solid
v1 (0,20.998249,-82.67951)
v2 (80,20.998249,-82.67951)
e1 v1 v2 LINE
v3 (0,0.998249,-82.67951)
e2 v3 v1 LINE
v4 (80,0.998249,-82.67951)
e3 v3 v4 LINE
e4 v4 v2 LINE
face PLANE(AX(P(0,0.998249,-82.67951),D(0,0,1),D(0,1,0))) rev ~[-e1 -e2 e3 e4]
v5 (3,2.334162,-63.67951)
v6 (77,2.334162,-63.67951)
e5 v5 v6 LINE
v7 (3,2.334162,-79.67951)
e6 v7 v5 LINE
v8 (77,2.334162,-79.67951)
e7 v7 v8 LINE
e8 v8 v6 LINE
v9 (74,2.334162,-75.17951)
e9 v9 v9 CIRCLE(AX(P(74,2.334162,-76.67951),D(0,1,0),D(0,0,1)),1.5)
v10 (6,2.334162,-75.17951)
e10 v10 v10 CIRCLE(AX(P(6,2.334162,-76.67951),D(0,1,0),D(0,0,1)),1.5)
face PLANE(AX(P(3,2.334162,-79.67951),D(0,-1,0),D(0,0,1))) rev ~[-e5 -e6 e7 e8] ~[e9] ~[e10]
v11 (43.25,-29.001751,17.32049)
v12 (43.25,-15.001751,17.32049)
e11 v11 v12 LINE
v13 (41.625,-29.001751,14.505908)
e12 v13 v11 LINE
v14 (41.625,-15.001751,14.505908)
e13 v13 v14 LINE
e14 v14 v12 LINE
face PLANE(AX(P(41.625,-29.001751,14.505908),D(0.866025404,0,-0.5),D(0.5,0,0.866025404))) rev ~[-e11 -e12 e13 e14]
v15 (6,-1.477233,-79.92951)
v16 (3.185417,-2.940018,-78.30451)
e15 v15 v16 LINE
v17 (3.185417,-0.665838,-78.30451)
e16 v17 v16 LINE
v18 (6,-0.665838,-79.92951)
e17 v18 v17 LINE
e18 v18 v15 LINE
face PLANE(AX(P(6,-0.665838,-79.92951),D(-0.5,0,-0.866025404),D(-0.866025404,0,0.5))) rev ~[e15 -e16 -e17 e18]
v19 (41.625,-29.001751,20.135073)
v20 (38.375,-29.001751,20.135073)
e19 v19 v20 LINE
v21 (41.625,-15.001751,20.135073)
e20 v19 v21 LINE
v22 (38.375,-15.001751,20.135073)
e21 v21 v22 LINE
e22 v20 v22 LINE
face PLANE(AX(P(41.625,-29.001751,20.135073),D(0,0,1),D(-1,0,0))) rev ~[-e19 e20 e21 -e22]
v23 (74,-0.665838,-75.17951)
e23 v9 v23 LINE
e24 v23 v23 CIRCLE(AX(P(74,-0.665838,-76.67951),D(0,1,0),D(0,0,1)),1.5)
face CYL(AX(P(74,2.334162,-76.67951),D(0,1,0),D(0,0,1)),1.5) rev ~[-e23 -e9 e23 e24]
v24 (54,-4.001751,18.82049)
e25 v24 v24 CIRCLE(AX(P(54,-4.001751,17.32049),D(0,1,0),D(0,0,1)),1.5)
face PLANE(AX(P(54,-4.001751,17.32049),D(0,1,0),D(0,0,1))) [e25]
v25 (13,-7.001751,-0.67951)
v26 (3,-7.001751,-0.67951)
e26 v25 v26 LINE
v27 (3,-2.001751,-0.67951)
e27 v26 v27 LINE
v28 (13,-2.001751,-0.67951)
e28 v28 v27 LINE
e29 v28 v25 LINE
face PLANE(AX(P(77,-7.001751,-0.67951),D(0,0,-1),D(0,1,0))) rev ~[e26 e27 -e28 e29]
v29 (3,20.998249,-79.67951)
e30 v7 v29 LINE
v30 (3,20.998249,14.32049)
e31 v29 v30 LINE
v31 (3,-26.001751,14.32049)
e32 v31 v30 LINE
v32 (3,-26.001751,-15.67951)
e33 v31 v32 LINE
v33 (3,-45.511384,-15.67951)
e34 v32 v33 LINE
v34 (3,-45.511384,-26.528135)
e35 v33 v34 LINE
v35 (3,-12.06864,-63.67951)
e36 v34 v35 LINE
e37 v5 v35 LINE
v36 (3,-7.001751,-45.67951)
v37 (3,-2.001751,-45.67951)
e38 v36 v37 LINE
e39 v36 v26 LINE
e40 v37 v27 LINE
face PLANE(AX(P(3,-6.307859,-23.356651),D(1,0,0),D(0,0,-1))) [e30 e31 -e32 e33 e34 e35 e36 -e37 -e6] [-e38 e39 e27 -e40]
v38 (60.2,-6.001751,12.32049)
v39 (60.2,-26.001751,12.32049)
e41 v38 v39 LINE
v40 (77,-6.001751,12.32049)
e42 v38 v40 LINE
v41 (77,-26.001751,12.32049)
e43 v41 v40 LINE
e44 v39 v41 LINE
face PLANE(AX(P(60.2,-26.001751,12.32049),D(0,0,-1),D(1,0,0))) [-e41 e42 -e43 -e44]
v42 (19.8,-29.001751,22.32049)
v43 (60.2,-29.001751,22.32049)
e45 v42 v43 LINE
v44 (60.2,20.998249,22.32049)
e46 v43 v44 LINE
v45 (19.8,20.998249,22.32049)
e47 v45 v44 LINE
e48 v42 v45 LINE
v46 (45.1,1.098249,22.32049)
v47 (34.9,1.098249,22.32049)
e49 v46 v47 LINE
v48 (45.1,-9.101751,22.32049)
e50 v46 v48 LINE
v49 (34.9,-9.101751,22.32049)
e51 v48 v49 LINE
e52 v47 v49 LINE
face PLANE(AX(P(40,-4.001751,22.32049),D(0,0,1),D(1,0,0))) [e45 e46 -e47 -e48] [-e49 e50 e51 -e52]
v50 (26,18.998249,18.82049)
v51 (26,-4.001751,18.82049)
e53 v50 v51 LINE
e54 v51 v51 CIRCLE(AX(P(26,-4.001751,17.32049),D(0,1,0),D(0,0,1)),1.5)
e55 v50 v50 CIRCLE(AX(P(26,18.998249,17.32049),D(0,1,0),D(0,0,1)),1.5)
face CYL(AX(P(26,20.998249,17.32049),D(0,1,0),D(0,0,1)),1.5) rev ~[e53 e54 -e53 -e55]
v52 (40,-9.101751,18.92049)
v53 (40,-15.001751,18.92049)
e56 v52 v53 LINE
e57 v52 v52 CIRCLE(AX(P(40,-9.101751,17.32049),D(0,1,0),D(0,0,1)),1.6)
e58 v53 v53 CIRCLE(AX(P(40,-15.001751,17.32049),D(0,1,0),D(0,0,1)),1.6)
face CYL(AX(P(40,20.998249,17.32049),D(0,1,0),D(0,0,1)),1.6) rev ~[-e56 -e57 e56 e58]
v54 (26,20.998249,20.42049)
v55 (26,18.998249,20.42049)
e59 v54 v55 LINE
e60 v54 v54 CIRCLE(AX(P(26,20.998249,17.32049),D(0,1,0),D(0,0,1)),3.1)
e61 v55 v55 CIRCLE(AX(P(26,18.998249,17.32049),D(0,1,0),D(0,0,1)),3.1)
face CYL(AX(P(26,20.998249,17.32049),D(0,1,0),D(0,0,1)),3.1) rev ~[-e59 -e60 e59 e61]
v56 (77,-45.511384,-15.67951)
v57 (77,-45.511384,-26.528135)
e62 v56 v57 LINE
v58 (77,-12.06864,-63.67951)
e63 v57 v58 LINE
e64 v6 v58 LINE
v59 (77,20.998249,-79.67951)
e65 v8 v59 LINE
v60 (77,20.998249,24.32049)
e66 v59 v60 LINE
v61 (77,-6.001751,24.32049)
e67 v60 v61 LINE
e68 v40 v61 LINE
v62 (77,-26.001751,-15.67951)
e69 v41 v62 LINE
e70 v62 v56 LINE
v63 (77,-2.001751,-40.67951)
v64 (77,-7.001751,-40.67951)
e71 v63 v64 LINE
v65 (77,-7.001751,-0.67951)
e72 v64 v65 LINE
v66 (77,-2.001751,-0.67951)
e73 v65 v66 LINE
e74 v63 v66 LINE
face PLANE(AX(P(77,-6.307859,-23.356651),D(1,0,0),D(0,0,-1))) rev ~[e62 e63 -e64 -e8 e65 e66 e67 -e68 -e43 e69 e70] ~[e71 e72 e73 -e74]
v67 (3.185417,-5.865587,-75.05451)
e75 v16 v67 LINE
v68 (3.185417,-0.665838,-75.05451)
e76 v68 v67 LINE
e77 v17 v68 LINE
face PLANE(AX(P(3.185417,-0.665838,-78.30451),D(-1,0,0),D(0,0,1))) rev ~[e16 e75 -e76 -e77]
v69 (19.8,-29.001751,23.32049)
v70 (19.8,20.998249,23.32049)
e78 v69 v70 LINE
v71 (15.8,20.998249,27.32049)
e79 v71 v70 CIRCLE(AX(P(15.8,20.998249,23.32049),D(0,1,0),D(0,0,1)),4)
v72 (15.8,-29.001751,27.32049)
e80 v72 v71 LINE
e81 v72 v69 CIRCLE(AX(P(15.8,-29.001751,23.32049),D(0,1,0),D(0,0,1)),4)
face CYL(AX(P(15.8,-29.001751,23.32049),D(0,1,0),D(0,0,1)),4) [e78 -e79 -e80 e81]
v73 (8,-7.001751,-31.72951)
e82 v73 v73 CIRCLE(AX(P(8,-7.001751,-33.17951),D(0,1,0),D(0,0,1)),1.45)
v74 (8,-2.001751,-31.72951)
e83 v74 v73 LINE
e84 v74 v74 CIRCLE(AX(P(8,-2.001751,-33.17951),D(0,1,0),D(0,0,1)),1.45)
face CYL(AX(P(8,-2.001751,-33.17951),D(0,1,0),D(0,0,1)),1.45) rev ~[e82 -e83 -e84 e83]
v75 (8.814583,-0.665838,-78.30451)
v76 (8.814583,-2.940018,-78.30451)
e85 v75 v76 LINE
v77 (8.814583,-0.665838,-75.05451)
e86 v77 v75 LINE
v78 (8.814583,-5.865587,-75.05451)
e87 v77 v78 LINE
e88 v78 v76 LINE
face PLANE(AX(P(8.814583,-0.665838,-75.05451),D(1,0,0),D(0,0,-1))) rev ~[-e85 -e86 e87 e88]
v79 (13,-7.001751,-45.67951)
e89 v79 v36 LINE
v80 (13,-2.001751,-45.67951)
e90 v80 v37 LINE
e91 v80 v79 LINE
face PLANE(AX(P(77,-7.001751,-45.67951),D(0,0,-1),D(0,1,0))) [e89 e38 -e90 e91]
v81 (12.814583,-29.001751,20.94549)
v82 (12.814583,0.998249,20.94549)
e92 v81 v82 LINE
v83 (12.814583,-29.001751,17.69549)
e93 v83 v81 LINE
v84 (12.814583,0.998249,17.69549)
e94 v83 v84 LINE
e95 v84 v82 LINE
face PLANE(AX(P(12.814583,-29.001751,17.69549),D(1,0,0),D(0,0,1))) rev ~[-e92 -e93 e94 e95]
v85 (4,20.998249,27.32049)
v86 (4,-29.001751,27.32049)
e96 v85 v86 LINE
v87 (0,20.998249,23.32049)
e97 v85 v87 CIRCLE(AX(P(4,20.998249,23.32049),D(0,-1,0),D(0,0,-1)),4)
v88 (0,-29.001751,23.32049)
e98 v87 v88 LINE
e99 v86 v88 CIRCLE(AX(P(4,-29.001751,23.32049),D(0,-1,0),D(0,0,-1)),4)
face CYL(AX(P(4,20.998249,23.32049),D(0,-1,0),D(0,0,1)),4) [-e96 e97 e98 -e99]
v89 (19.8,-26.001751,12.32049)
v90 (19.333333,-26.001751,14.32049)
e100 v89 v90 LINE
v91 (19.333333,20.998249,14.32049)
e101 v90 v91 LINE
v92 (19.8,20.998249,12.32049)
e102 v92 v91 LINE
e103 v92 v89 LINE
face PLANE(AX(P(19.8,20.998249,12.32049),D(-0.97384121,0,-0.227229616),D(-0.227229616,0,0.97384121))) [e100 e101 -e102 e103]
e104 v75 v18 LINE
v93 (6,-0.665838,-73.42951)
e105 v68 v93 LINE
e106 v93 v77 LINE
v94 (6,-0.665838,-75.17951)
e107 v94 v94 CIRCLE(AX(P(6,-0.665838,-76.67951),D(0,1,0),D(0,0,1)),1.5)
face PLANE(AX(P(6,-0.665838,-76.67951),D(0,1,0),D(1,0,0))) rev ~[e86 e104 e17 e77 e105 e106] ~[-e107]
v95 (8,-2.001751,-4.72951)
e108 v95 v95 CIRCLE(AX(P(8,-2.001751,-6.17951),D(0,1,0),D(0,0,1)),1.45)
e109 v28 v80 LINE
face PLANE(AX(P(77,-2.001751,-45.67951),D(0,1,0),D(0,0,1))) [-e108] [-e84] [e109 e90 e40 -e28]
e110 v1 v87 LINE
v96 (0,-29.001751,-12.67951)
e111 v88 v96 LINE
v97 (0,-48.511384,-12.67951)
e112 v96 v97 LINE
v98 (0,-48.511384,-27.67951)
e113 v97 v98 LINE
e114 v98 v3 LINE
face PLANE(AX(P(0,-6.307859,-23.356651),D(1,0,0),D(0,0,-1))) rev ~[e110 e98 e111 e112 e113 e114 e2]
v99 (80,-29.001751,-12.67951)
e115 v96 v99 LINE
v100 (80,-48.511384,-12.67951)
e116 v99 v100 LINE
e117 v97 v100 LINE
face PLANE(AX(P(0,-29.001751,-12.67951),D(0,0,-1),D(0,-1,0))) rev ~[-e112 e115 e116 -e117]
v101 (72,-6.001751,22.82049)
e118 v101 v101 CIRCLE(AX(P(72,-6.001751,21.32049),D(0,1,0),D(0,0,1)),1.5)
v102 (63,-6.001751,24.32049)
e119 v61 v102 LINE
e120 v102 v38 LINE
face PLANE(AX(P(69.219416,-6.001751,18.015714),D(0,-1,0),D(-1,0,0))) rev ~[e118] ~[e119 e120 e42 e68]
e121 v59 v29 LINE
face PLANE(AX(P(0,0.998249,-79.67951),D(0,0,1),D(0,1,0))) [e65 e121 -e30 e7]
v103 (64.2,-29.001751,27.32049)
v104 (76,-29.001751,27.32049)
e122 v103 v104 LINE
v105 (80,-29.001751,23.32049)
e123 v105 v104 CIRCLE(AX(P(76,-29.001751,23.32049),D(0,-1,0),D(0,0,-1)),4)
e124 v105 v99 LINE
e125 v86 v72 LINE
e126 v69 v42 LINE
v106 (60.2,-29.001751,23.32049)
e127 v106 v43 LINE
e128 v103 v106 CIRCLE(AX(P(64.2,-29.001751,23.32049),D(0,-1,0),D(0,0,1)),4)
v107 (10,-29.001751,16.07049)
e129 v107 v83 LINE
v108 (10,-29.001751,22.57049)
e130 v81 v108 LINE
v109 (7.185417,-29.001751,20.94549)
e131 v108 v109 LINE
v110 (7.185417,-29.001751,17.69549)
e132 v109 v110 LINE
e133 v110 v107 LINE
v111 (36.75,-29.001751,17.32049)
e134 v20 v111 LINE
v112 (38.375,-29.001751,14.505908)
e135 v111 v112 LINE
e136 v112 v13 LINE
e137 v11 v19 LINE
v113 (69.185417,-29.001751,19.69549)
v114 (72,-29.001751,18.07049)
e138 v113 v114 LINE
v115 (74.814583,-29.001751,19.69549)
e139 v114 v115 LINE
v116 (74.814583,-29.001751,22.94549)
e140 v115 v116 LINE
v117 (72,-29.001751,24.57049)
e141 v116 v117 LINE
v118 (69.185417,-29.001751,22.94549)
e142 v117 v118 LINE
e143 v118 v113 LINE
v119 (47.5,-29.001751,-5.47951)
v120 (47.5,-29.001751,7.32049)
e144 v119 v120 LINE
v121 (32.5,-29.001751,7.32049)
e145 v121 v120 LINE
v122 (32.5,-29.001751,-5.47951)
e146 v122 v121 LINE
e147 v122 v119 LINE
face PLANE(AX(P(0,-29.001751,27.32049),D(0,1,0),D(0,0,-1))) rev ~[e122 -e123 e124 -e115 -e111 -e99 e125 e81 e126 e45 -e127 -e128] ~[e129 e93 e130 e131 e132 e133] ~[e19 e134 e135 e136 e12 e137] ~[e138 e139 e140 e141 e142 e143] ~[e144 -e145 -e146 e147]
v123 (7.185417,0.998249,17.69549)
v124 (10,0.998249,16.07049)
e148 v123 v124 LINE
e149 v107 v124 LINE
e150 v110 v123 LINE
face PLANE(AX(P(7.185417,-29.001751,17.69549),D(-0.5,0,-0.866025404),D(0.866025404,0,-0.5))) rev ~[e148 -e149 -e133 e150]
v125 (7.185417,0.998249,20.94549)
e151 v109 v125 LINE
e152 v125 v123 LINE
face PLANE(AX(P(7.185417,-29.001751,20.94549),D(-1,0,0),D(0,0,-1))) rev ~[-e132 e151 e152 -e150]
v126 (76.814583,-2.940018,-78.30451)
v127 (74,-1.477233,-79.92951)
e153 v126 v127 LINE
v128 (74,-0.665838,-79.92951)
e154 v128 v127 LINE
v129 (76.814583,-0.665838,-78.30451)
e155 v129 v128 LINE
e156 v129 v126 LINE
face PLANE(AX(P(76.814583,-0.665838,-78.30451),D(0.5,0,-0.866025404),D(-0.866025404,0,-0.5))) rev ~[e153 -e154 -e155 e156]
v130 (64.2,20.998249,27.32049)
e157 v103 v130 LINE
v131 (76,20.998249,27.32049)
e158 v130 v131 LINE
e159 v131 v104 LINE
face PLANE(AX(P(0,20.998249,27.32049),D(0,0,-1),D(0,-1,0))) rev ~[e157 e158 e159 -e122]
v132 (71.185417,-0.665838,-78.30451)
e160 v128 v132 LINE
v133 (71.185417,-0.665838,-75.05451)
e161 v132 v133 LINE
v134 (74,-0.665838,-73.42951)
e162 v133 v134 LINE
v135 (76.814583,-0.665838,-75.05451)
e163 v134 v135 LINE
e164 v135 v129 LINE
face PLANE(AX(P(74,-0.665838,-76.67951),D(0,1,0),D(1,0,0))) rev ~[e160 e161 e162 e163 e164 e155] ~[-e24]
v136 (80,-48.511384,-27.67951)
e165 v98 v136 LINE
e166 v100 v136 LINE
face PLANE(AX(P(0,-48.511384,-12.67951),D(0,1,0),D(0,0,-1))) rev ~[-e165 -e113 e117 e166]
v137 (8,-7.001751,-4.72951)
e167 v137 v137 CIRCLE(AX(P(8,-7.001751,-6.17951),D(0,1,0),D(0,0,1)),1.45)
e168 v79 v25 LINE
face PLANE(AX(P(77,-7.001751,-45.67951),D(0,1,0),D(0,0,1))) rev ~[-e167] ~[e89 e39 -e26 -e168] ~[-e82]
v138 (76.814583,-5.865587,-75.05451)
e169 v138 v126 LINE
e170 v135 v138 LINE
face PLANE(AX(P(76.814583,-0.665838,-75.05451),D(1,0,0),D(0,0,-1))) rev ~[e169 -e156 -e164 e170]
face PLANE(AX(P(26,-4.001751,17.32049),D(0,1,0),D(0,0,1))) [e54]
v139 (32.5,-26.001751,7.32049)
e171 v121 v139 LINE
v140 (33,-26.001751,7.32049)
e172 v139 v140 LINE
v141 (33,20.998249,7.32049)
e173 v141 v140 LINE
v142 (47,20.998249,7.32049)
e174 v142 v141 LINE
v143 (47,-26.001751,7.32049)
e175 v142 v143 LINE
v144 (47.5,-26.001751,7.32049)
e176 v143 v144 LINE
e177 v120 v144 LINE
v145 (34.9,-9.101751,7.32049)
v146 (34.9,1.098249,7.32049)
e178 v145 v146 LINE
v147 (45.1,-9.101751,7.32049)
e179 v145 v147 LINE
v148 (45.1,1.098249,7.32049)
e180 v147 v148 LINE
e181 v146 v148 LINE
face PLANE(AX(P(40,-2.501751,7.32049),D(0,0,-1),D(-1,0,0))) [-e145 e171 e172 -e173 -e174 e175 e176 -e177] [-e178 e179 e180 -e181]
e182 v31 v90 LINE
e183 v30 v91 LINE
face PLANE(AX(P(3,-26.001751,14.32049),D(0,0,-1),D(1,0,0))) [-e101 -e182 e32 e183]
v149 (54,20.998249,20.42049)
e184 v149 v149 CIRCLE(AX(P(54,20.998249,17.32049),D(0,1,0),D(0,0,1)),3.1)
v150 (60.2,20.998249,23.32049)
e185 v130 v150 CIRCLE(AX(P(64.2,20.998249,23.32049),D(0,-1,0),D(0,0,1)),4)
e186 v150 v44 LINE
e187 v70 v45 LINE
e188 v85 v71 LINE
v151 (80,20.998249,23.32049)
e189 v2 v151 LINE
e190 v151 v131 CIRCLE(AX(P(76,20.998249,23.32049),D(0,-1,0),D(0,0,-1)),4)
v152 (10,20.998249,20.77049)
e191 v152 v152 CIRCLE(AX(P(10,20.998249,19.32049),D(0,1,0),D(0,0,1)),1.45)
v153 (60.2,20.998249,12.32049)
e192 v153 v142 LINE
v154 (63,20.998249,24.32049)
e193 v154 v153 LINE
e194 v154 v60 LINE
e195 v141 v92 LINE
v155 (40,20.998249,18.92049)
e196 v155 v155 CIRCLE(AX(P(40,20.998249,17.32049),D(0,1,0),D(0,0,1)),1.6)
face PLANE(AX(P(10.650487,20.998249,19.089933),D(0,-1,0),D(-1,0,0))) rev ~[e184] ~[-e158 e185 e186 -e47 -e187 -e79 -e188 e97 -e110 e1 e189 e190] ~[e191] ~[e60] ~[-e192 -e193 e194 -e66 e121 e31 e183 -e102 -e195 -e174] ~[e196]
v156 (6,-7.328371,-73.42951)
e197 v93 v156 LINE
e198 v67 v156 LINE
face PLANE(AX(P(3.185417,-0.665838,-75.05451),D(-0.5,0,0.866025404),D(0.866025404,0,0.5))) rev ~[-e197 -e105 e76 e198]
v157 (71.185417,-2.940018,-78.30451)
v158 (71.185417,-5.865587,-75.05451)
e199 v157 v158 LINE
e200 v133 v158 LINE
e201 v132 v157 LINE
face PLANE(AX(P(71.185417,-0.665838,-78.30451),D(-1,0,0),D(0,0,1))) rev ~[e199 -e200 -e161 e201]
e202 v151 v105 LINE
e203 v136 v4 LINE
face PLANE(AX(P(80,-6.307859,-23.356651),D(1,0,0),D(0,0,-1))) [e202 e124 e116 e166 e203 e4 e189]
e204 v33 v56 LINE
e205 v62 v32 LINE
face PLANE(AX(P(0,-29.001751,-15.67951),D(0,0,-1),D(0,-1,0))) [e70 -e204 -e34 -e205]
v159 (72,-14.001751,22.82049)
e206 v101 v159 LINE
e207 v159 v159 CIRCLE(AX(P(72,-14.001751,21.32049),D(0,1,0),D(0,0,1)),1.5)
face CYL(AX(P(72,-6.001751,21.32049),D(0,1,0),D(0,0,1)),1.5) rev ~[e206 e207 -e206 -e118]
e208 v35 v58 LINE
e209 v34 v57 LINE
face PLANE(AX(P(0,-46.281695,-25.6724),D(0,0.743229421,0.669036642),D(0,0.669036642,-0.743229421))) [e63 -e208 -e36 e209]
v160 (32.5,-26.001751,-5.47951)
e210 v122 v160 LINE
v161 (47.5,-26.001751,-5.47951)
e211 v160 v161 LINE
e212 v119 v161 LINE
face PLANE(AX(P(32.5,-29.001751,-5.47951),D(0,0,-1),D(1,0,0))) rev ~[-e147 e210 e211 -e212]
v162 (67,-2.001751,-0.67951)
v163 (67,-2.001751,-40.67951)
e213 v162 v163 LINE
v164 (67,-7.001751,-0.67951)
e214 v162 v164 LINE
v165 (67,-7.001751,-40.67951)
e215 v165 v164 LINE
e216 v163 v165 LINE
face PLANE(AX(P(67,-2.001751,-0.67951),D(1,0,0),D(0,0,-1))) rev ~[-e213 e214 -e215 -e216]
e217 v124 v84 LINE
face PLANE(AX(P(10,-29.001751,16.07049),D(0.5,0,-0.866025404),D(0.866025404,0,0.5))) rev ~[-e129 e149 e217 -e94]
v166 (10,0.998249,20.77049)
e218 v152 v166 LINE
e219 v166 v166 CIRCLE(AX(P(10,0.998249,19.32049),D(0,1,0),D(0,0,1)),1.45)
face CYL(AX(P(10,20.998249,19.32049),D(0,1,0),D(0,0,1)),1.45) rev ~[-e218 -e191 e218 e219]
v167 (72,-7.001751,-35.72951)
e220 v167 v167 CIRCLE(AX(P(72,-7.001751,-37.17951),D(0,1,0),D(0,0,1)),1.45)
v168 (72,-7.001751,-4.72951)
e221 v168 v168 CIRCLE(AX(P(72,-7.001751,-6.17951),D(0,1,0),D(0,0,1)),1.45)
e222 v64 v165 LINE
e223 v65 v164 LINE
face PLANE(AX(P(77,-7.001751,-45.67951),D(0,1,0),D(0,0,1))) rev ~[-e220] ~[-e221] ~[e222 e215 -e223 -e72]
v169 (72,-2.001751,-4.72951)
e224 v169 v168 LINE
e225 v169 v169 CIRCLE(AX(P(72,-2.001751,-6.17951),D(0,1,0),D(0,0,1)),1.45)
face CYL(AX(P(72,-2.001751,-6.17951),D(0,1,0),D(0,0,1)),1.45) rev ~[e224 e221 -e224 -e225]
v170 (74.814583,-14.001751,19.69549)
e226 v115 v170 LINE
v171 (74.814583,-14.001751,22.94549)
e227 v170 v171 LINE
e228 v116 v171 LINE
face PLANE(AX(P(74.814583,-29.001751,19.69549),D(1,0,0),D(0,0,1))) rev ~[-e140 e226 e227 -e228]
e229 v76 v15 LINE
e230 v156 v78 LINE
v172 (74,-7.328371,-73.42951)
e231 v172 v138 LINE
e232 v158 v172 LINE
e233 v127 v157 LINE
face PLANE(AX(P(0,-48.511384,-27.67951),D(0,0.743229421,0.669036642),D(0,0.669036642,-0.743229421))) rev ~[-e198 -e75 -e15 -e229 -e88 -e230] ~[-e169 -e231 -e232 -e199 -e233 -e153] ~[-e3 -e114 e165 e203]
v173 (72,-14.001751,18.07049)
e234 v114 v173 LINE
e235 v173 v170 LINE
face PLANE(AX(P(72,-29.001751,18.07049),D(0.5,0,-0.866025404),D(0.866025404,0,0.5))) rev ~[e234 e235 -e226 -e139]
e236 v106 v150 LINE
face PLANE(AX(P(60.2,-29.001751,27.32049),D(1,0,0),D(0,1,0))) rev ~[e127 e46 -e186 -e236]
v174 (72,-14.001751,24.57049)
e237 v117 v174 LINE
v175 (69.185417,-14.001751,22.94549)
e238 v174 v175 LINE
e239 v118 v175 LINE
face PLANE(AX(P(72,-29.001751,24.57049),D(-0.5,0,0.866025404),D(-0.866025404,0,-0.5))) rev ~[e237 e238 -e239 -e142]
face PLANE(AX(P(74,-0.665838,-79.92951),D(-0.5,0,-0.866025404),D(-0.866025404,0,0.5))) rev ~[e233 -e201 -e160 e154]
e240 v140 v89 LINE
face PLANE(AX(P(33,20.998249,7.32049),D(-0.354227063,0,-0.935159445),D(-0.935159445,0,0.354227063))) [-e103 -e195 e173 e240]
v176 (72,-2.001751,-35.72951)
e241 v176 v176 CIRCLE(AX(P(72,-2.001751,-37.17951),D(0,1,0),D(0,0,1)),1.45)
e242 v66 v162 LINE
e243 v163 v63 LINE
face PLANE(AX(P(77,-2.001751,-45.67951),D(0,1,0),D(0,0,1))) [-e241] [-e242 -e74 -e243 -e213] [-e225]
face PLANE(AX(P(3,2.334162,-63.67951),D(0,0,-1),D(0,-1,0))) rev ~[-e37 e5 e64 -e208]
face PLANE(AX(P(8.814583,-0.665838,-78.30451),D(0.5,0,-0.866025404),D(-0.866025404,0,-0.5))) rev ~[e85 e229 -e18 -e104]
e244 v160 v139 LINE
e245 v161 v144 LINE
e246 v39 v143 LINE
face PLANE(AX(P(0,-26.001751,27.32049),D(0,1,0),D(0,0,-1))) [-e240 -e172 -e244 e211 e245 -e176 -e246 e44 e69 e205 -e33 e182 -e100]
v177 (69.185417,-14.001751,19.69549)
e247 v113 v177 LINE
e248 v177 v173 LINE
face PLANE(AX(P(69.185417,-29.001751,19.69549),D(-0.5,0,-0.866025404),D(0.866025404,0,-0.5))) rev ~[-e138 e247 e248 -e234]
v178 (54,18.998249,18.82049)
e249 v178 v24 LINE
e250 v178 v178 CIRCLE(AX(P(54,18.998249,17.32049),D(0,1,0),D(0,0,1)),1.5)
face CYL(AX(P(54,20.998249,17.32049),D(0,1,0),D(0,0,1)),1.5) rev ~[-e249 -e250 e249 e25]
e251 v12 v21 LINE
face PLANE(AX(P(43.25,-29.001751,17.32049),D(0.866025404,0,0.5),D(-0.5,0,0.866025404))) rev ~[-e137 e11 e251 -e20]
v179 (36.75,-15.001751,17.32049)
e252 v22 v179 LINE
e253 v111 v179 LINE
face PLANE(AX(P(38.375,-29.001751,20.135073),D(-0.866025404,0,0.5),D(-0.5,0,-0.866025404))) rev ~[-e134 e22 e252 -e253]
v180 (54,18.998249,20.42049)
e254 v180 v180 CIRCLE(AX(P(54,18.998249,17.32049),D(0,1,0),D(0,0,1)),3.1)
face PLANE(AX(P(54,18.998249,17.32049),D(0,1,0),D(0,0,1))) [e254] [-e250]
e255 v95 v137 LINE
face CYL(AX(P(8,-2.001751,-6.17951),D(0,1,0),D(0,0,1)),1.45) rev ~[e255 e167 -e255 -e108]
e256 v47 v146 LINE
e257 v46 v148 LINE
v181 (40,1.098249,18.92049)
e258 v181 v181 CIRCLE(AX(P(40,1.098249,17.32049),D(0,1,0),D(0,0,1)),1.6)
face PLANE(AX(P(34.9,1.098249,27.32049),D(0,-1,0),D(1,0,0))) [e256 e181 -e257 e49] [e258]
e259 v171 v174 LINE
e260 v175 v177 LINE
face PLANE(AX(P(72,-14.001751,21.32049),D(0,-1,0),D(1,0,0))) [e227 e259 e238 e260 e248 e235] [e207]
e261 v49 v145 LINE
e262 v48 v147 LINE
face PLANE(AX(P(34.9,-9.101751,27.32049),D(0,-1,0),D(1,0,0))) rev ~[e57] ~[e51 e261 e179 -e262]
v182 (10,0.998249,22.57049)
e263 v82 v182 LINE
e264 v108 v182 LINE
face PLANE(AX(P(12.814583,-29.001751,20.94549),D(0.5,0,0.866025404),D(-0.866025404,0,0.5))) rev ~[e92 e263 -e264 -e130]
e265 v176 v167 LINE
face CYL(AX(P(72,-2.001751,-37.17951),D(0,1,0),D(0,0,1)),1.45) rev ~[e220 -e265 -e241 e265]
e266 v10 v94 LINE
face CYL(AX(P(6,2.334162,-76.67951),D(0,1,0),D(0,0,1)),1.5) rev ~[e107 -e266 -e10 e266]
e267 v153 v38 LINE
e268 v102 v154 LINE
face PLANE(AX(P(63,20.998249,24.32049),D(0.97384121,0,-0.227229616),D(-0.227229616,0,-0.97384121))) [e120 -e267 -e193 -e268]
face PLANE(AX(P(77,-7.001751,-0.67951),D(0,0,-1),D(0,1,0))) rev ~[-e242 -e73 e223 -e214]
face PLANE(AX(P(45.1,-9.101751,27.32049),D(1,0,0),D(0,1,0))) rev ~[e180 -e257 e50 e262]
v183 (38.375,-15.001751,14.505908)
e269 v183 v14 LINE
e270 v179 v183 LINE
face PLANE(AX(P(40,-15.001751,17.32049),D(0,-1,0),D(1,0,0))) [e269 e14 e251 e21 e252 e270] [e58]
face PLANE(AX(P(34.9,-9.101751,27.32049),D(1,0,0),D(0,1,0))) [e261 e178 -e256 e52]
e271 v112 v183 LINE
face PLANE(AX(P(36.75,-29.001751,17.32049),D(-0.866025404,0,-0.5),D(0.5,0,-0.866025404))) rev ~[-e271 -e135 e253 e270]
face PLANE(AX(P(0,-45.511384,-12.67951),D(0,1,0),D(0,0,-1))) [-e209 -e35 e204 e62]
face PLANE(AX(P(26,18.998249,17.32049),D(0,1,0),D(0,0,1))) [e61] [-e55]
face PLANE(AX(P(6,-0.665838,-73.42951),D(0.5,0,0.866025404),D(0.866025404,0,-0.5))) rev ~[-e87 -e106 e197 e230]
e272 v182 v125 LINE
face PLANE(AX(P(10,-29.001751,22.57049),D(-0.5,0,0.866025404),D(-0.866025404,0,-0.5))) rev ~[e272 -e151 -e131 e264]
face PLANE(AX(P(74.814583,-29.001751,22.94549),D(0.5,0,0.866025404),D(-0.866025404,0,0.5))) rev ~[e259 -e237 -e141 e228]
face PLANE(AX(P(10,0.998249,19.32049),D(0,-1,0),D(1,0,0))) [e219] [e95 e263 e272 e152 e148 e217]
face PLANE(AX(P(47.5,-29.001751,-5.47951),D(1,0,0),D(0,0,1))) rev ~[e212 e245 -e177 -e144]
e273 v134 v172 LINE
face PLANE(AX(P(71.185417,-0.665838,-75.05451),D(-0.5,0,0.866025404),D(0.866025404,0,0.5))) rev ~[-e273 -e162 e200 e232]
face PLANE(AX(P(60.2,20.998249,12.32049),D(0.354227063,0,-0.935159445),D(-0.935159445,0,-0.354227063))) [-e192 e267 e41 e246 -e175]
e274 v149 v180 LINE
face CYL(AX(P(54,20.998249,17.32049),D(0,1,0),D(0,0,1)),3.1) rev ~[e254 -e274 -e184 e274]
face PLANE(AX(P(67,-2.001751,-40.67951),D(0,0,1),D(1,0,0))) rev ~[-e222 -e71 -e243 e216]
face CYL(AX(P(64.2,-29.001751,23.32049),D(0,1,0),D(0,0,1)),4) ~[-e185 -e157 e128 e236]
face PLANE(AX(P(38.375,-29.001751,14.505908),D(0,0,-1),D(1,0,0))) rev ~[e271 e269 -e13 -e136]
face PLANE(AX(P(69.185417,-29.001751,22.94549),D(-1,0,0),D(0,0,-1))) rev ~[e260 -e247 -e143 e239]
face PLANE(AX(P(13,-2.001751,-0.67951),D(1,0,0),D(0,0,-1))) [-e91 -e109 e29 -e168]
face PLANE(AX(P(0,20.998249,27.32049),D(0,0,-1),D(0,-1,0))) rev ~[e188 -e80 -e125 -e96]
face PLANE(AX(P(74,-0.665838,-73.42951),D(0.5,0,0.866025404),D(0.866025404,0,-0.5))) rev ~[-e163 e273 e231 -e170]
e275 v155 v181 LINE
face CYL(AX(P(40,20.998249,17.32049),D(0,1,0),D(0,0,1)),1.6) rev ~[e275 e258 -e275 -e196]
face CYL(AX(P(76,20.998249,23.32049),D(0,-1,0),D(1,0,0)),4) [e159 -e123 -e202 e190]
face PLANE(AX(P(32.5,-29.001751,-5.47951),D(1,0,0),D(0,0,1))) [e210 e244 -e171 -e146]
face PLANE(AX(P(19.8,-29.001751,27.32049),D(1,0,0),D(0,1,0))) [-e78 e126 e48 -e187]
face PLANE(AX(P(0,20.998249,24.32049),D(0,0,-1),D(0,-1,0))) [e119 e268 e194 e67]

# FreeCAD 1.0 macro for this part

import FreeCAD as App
import Part
import Sketcher
Q = App.Units.Quantity


def edges_at(feature, points):
    """Names of the edges that pass closest to the given points."""
    edges = feature.Shape.Edges
    near = lambda p: min(range(len(edges)), key=lambda i: edges[i].distToShape(Part.Vertex(*p))[0])
    return sorted({f"Edge{near(p) + 1}" for p in points})


def faces_at(feature, points):
    """Names of the faces that lie closest to the given points."""
    faces = feature.Shape.Faces
    near = lambda p: min(range(len(faces)), key=lambda i: faces[i].distToShape(Part.Vertex(*p))[0])
    return sorted({f"Face{near(p) + 1}" for p in points})


def add_polygon(sketch, points):
    """Adds a closed chain of lines whose ends are joined by coincident constraints."""
    first, n = sketch.GeometryCount, len(points)
    for a, b in zip(points, points[1:] + points[:1]):
        sketch.addGeometry(Part.LineSegment(App.Vector(*a, 0), App.Vector(*b, 0)), False)
    for i in range(n):
        sketch.addConstraint(Sketcher.Constraint("Coincident", first + i, 2, first + (i + 1) % n, 1))

doc = App.newDocument("Part")
body = doc.addObject("PartDesign::Body", "Body")

# Sketch on YZ plane
sketch1 = doc.addObject("Sketcher::SketchObject", "Sketch")
body.addObject(sketch1)
sketch1.AttachmentSupport = (doc.YZ_Plane, [""])
sketch1.MapMode = "FlatFace"
add_polygon(sketch1, [(21, 27), (-29, 27), (-29, -13), (-49, -13), (-49, -28), (1, -83), (21, -83)])  # lines 0-6
sketch1.addConstraint([
    Sketcher.Constraint("Horizontal", 0),
    Sketcher.Constraint("Vertical", 1),
    Sketcher.Constraint("Horizontal", 2),
    Sketcher.Constraint("Vertical", 3),
    Sketcher.Constraint("Horizontal", 5),
    Sketcher.Constraint("Vertical", 6),
    Sketcher.Constraint("DistanceX", 0, 2, 0, 1, 50.0),
    Sketcher.Constraint("DistanceX", 5, 1, 5, 2, 20.0),
    Sketcher.Constraint("DistanceY", 1, 2, 1, 1, 40.0),
    Sketcher.Constraint("DistanceY", 3, 2, 3, 1, 15.0),
    Sketcher.Constraint("DistanceY", 6, 1, 6, 2, 110.0),
    Sketcher.Constraint("DistanceX", 2, 2, 2, 1, 19.509632),
    Sketcher.Constraint("DistanceX", 0, 2, -1, 1, 29.001751),
    Sketcher.Constraint("DistanceY", -1, 1, 0, 2, 27.32049),
])
pad1 = doc.addObject("PartDesign::Pad", "Pad")
body.addObject(pad1)
pad1.Profile = sketch1
pad1.Length = 80
doc.recompute()

thickness = doc.addObject("PartDesign::Thickness", "Thickness")
body.addObject(thickness)
thickness.Base = (pad1, faces_at(pad1, [(40, 20.998, -27.68)]))
thickness.Value = 3
thickness.Reversed = True
thickness.Join = "Intersection"

# Sketch on XY plane
sketch2 = doc.addObject("Sketcher::SketchObject", "Sketch001")
body.addObject(sketch2)
sketch2.AttachmentSupport = (doc.XY_Plane, [""])
sketch2.MapMode = "FlatFace"
sketch2.AttachmentOffset = App.Placement(App.Vector(0, 0, 24.32049), App.Rotation())
add_polygon(sketch2, [(63, 21), (63, -26), (17, -26), (17, 21)])  # lines 0-3
sketch2.addConstraint([
    Sketcher.Constraint("Vertical", 0),
    Sketcher.Constraint("Horizontal", 1),
    Sketcher.Constraint("Vertical", 2),
    Sketcher.Constraint("Horizontal", 3),
    Sketcher.Constraint("DistanceX", 1, 2, 1, 1, 46.0),
    Sketcher.Constraint("DistanceY", 0, 2, 0, 1, 47.0),
    Sketcher.Constraint("DistanceX", -1, 1, 0, 2, 63.0),
    Sketcher.Constraint("DistanceY", 0, 2, -1, 1, 26.001751),
])
pad2 = doc.addObject("PartDesign::Pad", "Pad001")
body.addObject(pad2)
pad2.Profile = sketch2
pad2.Length = 17
pad2.Reversed = True

# Sketch on XY plane
sketch3 = doc.addObject("Sketcher::SketchObject", "Sketch002")
body.addObject(sketch3)
sketch3.AttachmentSupport = (doc.XY_Plane, [""])
sketch3.MapMode = "FlatFace"
sketch3.AttachmentOffset = App.Placement(App.Vector(0, 0, 27.32049), App.Rotation())
add_polygon(sketch3, [(35, 1), (35, -9), (45, -9), (45, 1)])  # lines 0-3
sketch3.addConstraint([
    Sketcher.Constraint("Vertical", 0),
    Sketcher.Constraint("Horizontal", 1),
    Sketcher.Constraint("Vertical", 2),
    Sketcher.Constraint("Horizontal", 3),
    Sketcher.Constraint("Equal", 3, 0),
    Sketcher.Constraint("DistanceX", 1, 1, 1, 2, 10.2),
    Sketcher.Constraint("DistanceX", -1, 1, 0, 2, 34.9),
    Sketcher.Constraint("DistanceY", 0, 2, -1, 1, 9.101751),
])
pocket1 = doc.addObject("PartDesign::Pocket", "Pocket")
body.addObject(pocket1)
pocket1.Profile = sketch3
pocket1.Length = 20

# Sketch on XZ plane
sketch4 = doc.addObject("Sketcher::SketchObject", "Sketch003")
body.addObject(sketch4)
sketch4.AttachmentSupport = (doc.XZ_Plane, [""])
sketch4.MapMode = "FlatFace"
sketch4.AttachmentOffset = App.Placement(App.Vector(0, 0, 29.001751), App.Rotation())
add_polygon(sketch4, [(32, 7), (32, -5), (48, -5), (48, 7)])  # lines 0-3
sketch4.addConstraint([
    Sketcher.Constraint("Vertical", 0),
    Sketcher.Constraint("Horizontal", 1),
    Sketcher.Constraint("Vertical", 2),
    Sketcher.Constraint("Horizontal", 3),
    Sketcher.Constraint("DistanceX", 1, 1, 1, 2, 15.0),
    Sketcher.Constraint("DistanceY", 0, 2, 0, 1, 12.8),
    Sketcher.Constraint("DistanceX", -1, 1, 0, 2, 32.5),
    Sketcher.Constraint("DistanceY", 0, 2, -1, 1, 5.47951),
])
pocket2 = doc.addObject("PartDesign::Pocket", "Pocket001")
body.addObject(pocket2)
pocket2.Profile = sketch4
pocket2.Length = 3

# Sketch on XY plane
sketch5 = doc.addObject("Sketcher::SketchObject", "Sketch004")
body.addObject(sketch5)
sketch5.AttachmentSupport = (doc.XY_Plane, [""])
sketch5.MapMode = "FlatFace"
sketch5.AttachmentOffset = App.Placement(App.Vector(0, 0, 27.32049), App.Rotation())
add_polygon(sketch5, [(20, 21), (20, -29), (60, -29), (60, 21)])  # lines 0-3
sketch5.addConstraint([
    Sketcher.Constraint("Vertical", 0),
    Sketcher.Constraint("Horizontal", 1),
    Sketcher.Constraint("Vertical", 2),
    Sketcher.Constraint("Horizontal", 3),
    Sketcher.Constraint("DistanceY", 0, 2, 0, 1, 50.0),
    Sketcher.Constraint("DistanceX", 1, 1, 1, 2, 40.4),
    Sketcher.Constraint("DistanceX", -1, 1, 0, 2, 19.8),
    Sketcher.Constraint("DistanceY", 0, 2, -1, 1, 29.001751),
])
pocket3 = doc.addObject("PartDesign::Pocket", "Pocket002")
body.addObject(pocket3)
pocket3.Profile = sketch5
pocket3.Length = 5
doc.recompute()

fillet = doc.addObject("PartDesign::Fillet", "Fillet")
body.addObject(fillet)
fillet.Base = (pocket3, edges_at(pocket3, [
    (80, -4.002, 27.32),
    (19.8, -4.002, 27.32),
    (0, -4.002, 27.32),
    (60.2, -4.002, 27.32),
]))
fillet.Radius = 4

# Sketch on XZ plane
sketch6 = doc.addObject("Sketcher::SketchObject", "Sketch005")
body.addObject(sketch6)
sketch6.AttachmentSupport = (doc.XZ_Plane, [""])
sketch6.MapMode = "FlatFace"
sketch6.AttachmentOffset = App.Placement(App.Vector(0, 0, -20.998249), App.Rotation())
add_polygon(sketch6, [(20, 12), (33, 7), (17, 7), (17, 24)])  # lines 0-3
add_polygon(sketch6, [(63, 7), (47, 7), (60, 12), (63, 24)])  # lines 4-7
sketch6.addConstraint([
    Sketcher.Constraint("Horizontal", 1),
    Sketcher.Constraint("Vertical", 2),
    Sketcher.Constraint("Horizontal", 4),
    Sketcher.Constraint("Vertical", 7),
    Sketcher.Constraint("Horizontal", 1, 2, 4, 2),
    Sketcher.Constraint("Horizontal", 3, 2, 5, 2),
    Sketcher.Constraint("Horizontal", 2, 2, 6, 2),
    Sketcher.Constraint("Equal", 1, 4),
    Sketcher.Constraint("Equal", 0, 5),
    Sketcher.Constraint("DistanceX", 1, 2, 1, 1, 16.0),
    Sketcher.Constraint("DistanceY", 2, 1, 2, 2, 17.0),
    Sketcher.Constraint("DistanceX", -1, 1, 0, 2, 33.0),
    Sketcher.Constraint("DistanceX", -1, 1, 4, 2, 47.0),
    Sketcher.Constraint("DistanceY", 1, 2, 3, 2, 5.0),
    Sketcher.Constraint("DistanceX", -1, 1, 3, 2, 19.8),
    Sketcher.Constraint("DistanceY", -1, 1, 0, 2, 7.32049),
])
pocket4 = doc.addObject("PartDesign::Pocket", "Pocket003")
body.addObject(pocket4)
pocket4.Profile = sketch6
pocket4.Length = 47
pocket4.Reversed = True

# Sketch on XZ plane
sketch7 = doc.addObject("Sketcher::SketchObject", "Sketch006")
body.addObject(sketch7)
sketch7.AttachmentSupport = (doc.XZ_Plane, [""])
sketch7.MapMode = "FlatFace"
sketch7.AttachmentOffset = App.Placement(App.Vector(0, 0, -20.998249), App.Rotation())
sketch7.addGeometry([
    Part.Circle(App.Vector(26, 17.3, 0), App.Vector(0, 0, 1), 1.5),
    Part.Circle(App.Vector(54, 17.3, 0), App.Vector(0, 0, 1), 1.5),
], False)
sketch7.addConstraint([
    Sketcher.Constraint("Equal", 0, 1),
    Sketcher.Constraint("Horizontal", 0, 3, 1, 3),
    Sketcher.Constraint("Diameter", 0, 3.0),
    Sketcher.Constraint("DistanceX", -1, 1, 0, 3, 26.0),
    Sketcher.Constraint("DistanceX", -1, 1, 1, 3, 54.0),
    Sketcher.Constraint("DistanceY", -1, 1, 0, 3, 17.32049),
])
pocket5 = doc.addObject("PartDesign::Pocket", "Pocket004")
body.addObject(pocket5)
pocket5.Profile = sketch7
pocket5.Length = 25
pocket5.Reversed = True

# Sketch on XZ plane
sketch8 = doc.addObject("Sketcher::SketchObject", "Sketch007")
body.addObject(sketch8)
sketch8.AttachmentSupport = (doc.XZ_Plane, [""])
sketch8.MapMode = "FlatFace"
sketch8.AttachmentOffset = App.Placement(App.Vector(0, 0, -20.998249), App.Rotation())
sketch8.addGeometry([
    Part.Circle(App.Vector(26, 17.3, 0), App.Vector(0, 0, 1), 3.1),
    Part.Circle(App.Vector(54, 17.3, 0), App.Vector(0, 0, 1), 3.1),
], False)
sketch8.addConstraint([
    Sketcher.Constraint("Equal", 0, 1),
    Sketcher.Constraint("Horizontal", 0, 3, 1, 3),
    Sketcher.Constraint("Diameter", 0, 6.2),
    Sketcher.Constraint("DistanceX", -1, 1, 0, 3, 26.0),
    Sketcher.Constraint("DistanceX", -1, 1, 1, 3, 54.0),
    Sketcher.Constraint("DistanceY", -1, 1, 0, 3, 17.32049),
])
pocket6 = doc.addObject("PartDesign::Pocket", "Pocket005")
body.addObject(pocket6)
pocket6.Profile = sketch8
pocket6.Length = 2
pocket6.Reversed = True

# Sketch on YZ plane
sketch9 = doc.addObject("Sketcher::SketchObject", "Sketch008")
body.addObject(sketch9)
sketch9.AttachmentSupport = (doc.YZ_Plane, [""])
sketch9.MapMode = "FlatFace"
sketch9.AttachmentOffset = App.Placement(App.Vector(0, 0, 77), App.Rotation())
add_polygon(sketch9, [(-2, -46), (-7, -46), (-7, -1), (-2, -1)])  # lines 0-3
sketch9.addConstraint([
    Sketcher.Constraint("Horizontal", 0),
    Sketcher.Constraint("Vertical", 1),
    Sketcher.Constraint("Horizontal", 2),
    Sketcher.Constraint("Vertical", 3),
    Sketcher.Constraint("DistanceX", 0, 2, 0, 1, 5.0),
    Sketcher.Constraint("DistanceY", 1, 1, 1, 2, 45.0),
    Sketcher.Constraint("DistanceX", 0, 2, -1, 1, 7.001751),
    Sketcher.Constraint("DistanceY", 0, 2, -1, 1, 45.67951),
])
pad3 = doc.addObject("PartDesign::Pad", "Pad002")
body.addObject(pad3)
pad3.Profile = sketch9
pad3.Length = 74
pad3.Reversed = True

# Sketch on XZ plane
sketch10 = doc.addObject("Sketcher::SketchObject", "Sketch009")
body.addObject(sketch10)
sketch10.AttachmentSupport = (doc.XZ_Plane, [""])
sketch10.MapMode = "FlatFace"
sketch10.AttachmentOffset = App.Placement(App.Vector(0, 0, 2.001751), App.Rotation())
add_polygon(sketch10, [(13, -46), (13, -1), (67, -1), (67, -46)])  # lines 0-3
sketch10.addConstraint([
    Sketcher.Constraint("Vertical", 0),
    Sketcher.Constraint("Horizontal", 1),
    Sketcher.Constraint("Vertical", 2),
    Sketcher.Constraint("Horizontal", 3),
    Sketcher.Constraint("DistanceX", 1, 1, 1, 2, 54.0),
    Sketcher.Constraint("DistanceY", 0, 1, 0, 2, 45.0),
    Sketcher.Constraint("DistanceX", -1, 1, 0, 2, 13.0),
    Sketcher.Constraint("DistanceY", 0, 2, -1, 1, 0.67951),
])
pocket7 = doc.addObject("PartDesign::Pocket", "Pocket006")
body.addObject(pocket7)
pocket7.Profile = sketch10
pocket7.Type = "UpToFirst"
pocket7.Reversed = True

# Sketch on XZ plane
sketch11 = doc.addObject("Sketcher::SketchObject", "Sketch010")
body.addObject(sketch11)
sketch11.AttachmentSupport = (doc.XZ_Plane, [""])
sketch11.MapMode = "FlatFace"
sketch11.AttachmentOffset = App.Placement(App.Vector(0, 0, 2.001751), App.Rotation())
sketch11.addGeometry(Part.Circle(App.Vector(72, -37.2, 0), App.Vector(0, 0, 1), 1.4), False)
sketch11.addConstraint([
    Sketcher.Constraint("Diameter", 0, 2.9),
    Sketcher.Constraint("DistanceX", -1, 1, 0, 3, 72.0),
    Sketcher.Constraint("DistanceY", 0, 3, -1, 1, 37.17951),
])
pocket8 = doc.addObject("PartDesign::Pocket", "Pocket007")
body.addObject(pocket8)
pocket8.Profile = sketch11
pocket8.Type = "UpToFirst"
pocket8.Reversed = True

# Sketch on XZ plane
sketch12 = doc.addObject("Sketcher::SketchObject", "Sketch011")
body.addObject(sketch12)
sketch12.AttachmentSupport = (doc.XZ_Plane, [""])
sketch12.MapMode = "FlatFace"
sketch12.AttachmentOffset = App.Placement(App.Vector(0, 0, 2.001751), App.Rotation())
sketch12.addGeometry(Part.Circle(App.Vector(72, -6.2, 0), App.Vector(0, 0, 1), 1.4), False)
sketch12.addConstraint([
    Sketcher.Constraint("Diameter", 0, 2.9),
    Sketcher.Constraint("DistanceX", -1, 1, 0, 3, 72.0),
    Sketcher.Constraint("DistanceY", 0, 3, -1, 1, 6.17951),
])
pocket9 = doc.addObject("PartDesign::Pocket", "Pocket008")
body.addObject(pocket9)
pocket9.Profile = sketch12
pocket9.Type = "UpToFirst"
pocket9.Reversed = True

# Sketch on XZ plane
sketch13 = doc.addObject("Sketcher::SketchObject", "Sketch012")
body.addObject(sketch13)
sketch13.AttachmentSupport = (doc.XZ_Plane, [""])
sketch13.MapMode = "FlatFace"
sketch13.AttachmentOffset = App.Placement(App.Vector(0, 0, 2.001751), App.Rotation())
sketch13.addGeometry(Part.Circle(App.Vector(8, -33.2, 0), App.Vector(0, 0, 1), 1.4), False)
sketch13.addConstraint([
    Sketcher.Constraint("Diameter", 0, 2.9),
    Sketcher.Constraint("DistanceX", -1, 1, 0, 3, 8.0),
    Sketcher.Constraint("DistanceY", 0, 3, -1, 1, 33.17951),
])
pocket10 = doc.addObject("PartDesign::Pocket", "Pocket009")
body.addObject(pocket10)
pocket10.Profile = sketch13
pocket10.Type = "UpToFirst"
pocket10.Reversed = True

# Sketch on XZ plane
sketch14 = doc.addObject("Sketcher::SketchObject", "Sketch013")
body.addObject(sketch14)
sketch14.AttachmentSupport = (doc.XZ_Plane, [""])
sketch14.MapMode = "FlatFace"
sketch14.AttachmentOffset = App.Placement(App.Vector(0, 0, 2.001751), App.Rotation())
sketch14.addGeometry(Part.Circle(App.Vector(8, -6.2, 0), App.Vector(0, 0, 1), 1.4), False)
sketch14.addConstraint([
    Sketcher.Constraint("Diameter", 0, 2.9),
    Sketcher.Constraint("DistanceX", -1, 1, 0, 3, 8.0),
    Sketcher.Constraint("DistanceY", 0, 3, -1, 1, 6.17951),
])
pocket11 = doc.addObject("PartDesign::Pocket", "Pocket010")
body.addObject(pocket11)
pocket11.Profile = sketch14
pocket11.Type = "UpToFirst"
pocket11.Reversed = True

# Sketch on XZ plane
sketch15 = doc.addObject("Sketcher::SketchObject", "Sketch014")
body.addObject(sketch15)
sketch15.AttachmentSupport = (doc.XZ_Plane, [""])
sketch15.MapMode = "FlatFace"
sketch15.AttachmentOffset = App.Placement(App.Vector(0, 0, 26.001751), App.Rotation())
add_polygon(sketch15, [(3, 14), (3, 24), (17, 24), (19, 14)])  # lines 0-3
sketch15.addConstraint([
    Sketcher.Constraint("Vertical", 0),
    Sketcher.Constraint("Horizontal", 1),
    Sketcher.Constraint("Horizontal", 3),
    Sketcher.Constraint("DistanceX", 1, 1, 1, 2, 14.0),
    Sketcher.Constraint("DistanceY", 0, 1, 0, 2, 10.0),
    Sketcher.Constraint("DistanceX", -1, 1, 0, 2, 3.0),
    Sketcher.Constraint("DistanceX", 3, 2, 3, 1, 16.333333),
    Sketcher.Constraint("DistanceY", -1, 1, 0, 2, 24.32049),
])
pad4 = doc.addObject("PartDesign::Pad", "Pad003")
body.addObject(pad4)
pad4.Profile = sketch15
pad4.Length = 47
pad4.Reversed = True

# Sketch on XZ plane
sketch16 = doc.addObject("Sketcher::SketchObject", "Sketch015")
body.addObject(sketch16)
sketch16.AttachmentSupport = (doc.XZ_Plane, [""])
sketch16.MapMode = "FlatFace"
sketch16.AttachmentOffset = App.Placement(App.Vector(0, 0, -20.998249), App.Rotation())
sketch16.addGeometry(Part.Circle(App.Vector(10, 19.3, 0), App.Vector(0, 0, 1), 1.4), False)
sketch16.addConstraint([
    Sketcher.Constraint("Diameter", 0, 2.9),
    Sketcher.Constraint("DistanceX", -1, 1, 0, 3, 10.0),
    Sketcher.Constraint("DistanceY", -1, 1, 0, 3, 19.32049),
])
pocket12 = doc.addObject("PartDesign::Pocket", "Pocket011")
body.addObject(pocket12)
pocket12.Profile = sketch16
pocket12.Type = "ThroughAll"
pocket12.Reversed = True

# Sketch on YZ plane
sketch17 = doc.addObject("Sketcher::SketchObject", "Sketch016")
body.addObject(sketch17)
sketch17.AttachmentSupport = (doc.YZ_Plane, [""])
sketch17.MapMode = "FlatFace"
sketch17.AttachmentOffset = App.Placement(App.Vector(0, 0, 3), App.Rotation())
add_polygon(sketch17, [(2, -80), (2, -64), (-12, -64)])  # lines 0-2
sketch17.addConstraint([
    Sketcher.Constraint("Vertical", 0),
    Sketcher.Constraint("Horizontal", 1),
    Sketcher.Constraint("DistanceY", 0, 1, 0, 2, 16.0),
    Sketcher.Constraint("DistanceX", 1, 2, 1, 1, 14.402802),
    Sketcher.Constraint("DistanceX", -1, 1, 0, 2, 2.334162),
    Sketcher.Constraint("DistanceY", 0, 2, -1, 1, 63.67951),
])
pad5 = doc.addObject("PartDesign::Pad", "Pad004")
body.addObject(pad5)
pad5.Profile = sketch17
pad5.Length = 74

# Sketch on XZ plane
sketch18 = doc.addObject("Sketcher::SketchObject", "Sketch017")
body.addObject(sketch18)
sketch18.AttachmentSupport = (doc.XZ_Plane, [""])
sketch18.MapMode = "FlatFace"
sketch18.AttachmentOffset = App.Placement(App.Vector(0, 0, -2.334162), App.Rotation())
sketch18.addGeometry([
    Part.Circle(App.Vector(6, -76.7, 0), App.Vector(0, 0, 1), 1.5),
    Part.Circle(App.Vector(74, -76.7, 0), App.Vector(0, 0, 1), 1.5),
], False)
sketch18.addConstraint([
    Sketcher.Constraint("Equal", 0, 1),
    Sketcher.Constraint("Horizontal", 0, 3, 1, 3),
    Sketcher.Constraint("Diameter", 0, 3.0),
    Sketcher.Constraint("DistanceX", -1, 1, 0, 3, 6.0),
    Sketcher.Constraint("DistanceX", -1, 1, 1, 3, 74.0),
    Sketcher.Constraint("DistanceY", 0, 3, -1, 1, 76.67951),
])
pocket13 = doc.addObject("PartDesign::Pocket", "Pocket012")
body.addObject(pocket13)
pocket13.Profile = sketch18
pocket13.Length = 10
pocket13.Reversed = True

# Sketch on XZ plane
sketch19 = doc.addObject("Sketcher::SketchObject", "Sketch018")
body.addObject(sketch19)
sketch19.AttachmentSupport = (doc.XZ_Plane, [""])
sketch19.MapMode = "FlatFace"
sketch19.AttachmentOffset = App.Placement(App.Vector(0, 0, 0.665838), App.Rotation())
add_polygon(sketch19, [(74, -79.9), (71.2, -78.3), (71.2, -75.1), (74, -73.4), (76.8, -75.1), (76.8, -78.3)])  # lines 0-5
add_polygon(sketch19, [(6, -73.4), (8.8, -75.1), (8.8, -78.3), (6, -79.9), (3.2, -78.3), (3.2, -75.1)])  # lines 6-11
sketch19.addConstraint([
    Sketcher.Constraint("Vertical", 1),
    Sketcher.Constraint("Vertical", 4),
    Sketcher.Constraint("Vertical", 7),
    Sketcher.Constraint("Vertical", 10),
    Sketcher.Constraint("Parallel", 0, 3),
    Sketcher.Constraint("Parallel", 2, 5),
    Sketcher.Constraint("Parallel", 3, 6),
    Sketcher.Constraint("Parallel", 5, 8),
    Sketcher.Constraint("Parallel", 6, 9),
    Sketcher.Constraint("Parallel", 8, 11),
    Sketcher.Constraint("Horizontal", 1, 2, 3, 2),
    Sketcher.Constraint("Horizontal", 0, 2, 4, 2),
    Sketcher.Constraint("Horizontal", 3, 2, 6, 2),
    Sketcher.Constraint("Horizontal", 4, 2, 7, 2),
    Sketcher.Constraint("Horizontal", 5, 2, 8, 2),
    Sketcher.Constraint("Horizontal", 7, 2, 9, 2),
    Sketcher.Constraint("Horizontal", 6, 2, 10, 2),
    Sketcher.Constraint("Vertical", 2, 2, 5, 2),
    Sketcher.Constraint("Angle", 0, Q("150 deg")),
    Sketcher.Constraint("DistanceX", -1, 1, 2, 2, 74.0),
    Sketcher.Constraint("DistanceX", -1, 1, 8, 2, 6.0),
    Sketcher.Constraint("DistanceY", 1, 1, 1, 2, 3.25),
    Sketcher.Constraint("DistanceY", 5, 2, 2, 2, 6.5),
    Sketcher.Constraint("DistanceY", 0, 2, -1, 1, 78.30451),
])
pocket14 = doc.addObject("PartDesign::Pocket", "Pocket013")
body.addObject(pocket14)
pocket14.Profile = sketch19
pocket14.Length = 32
pocket14.Reversed = True

# Sketch on XZ plane
sketch20 = doc.addObject("Sketcher::SketchObject", "Sketch019")
body.addObject(sketch20)
sketch20.AttachmentSupport = (doc.XZ_Plane, [""])
sketch20.MapMode = "FlatFace"
sketch20.AttachmentOffset = App.Placement(App.Vector(0, 0, 29.001751), App.Rotation())
add_polygon(sketch20, [(7.2, 17.7), (10, 16.1), (12.8, 17.7), (12.8, 20.9), (10, 22.6), (7.2, 20.9)])  # lines 0-5
sketch20.addConstraint([
    Sketcher.Constraint("Vertical", 2),
    Sketcher.Constraint("Vertical", 5),
    Sketcher.Constraint("Parallel", 0, 3),
    Sketcher.Constraint("Parallel", 1, 4),
    Sketcher.Constraint("Horizontal", 2, 2, 4, 2),
    Sketcher.Constraint("Horizontal", 1, 2, 5, 2),
    Sketcher.Constraint("Vertical", 0, 2, 3, 2),
    Sketcher.Constraint("Angle", 0, Q("-30 deg")),
    Sketcher.Constraint("DistanceX", -1, 1, 0, 2, 10.0),
    Sketcher.Constraint("DistanceY", 2, 1, 2, 2, 3.25),
    Sketcher.Constraint("DistanceY", 0, 2, 3, 2, 6.5),
    Sketcher.Constraint("DistanceY", -1, 1, 0, 2, 16.07049),
])
pocket15 = doc.addObject("PartDesign::Pocket", "Pocket014")
body.addObject(pocket15)
pocket15.Profile = sketch20
pocket15.Length = 30

# Sketch on XZ plane
sketch21 = doc.addObject("Sketcher::SketchObject", "Sketch020")
body.addObject(sketch21)
sketch21.AttachmentSupport = (doc.XZ_Plane, [""])
sketch21.MapMode = "FlatFace"
sketch21.AttachmentOffset = App.Placement(App.Vector(0, 0, 26.001751), App.Rotation())
add_polygon(sketch21, [(63, 24), (77, 24), (77, 12), (60, 12)])  # lines 0-3
sketch21.addConstraint([
    Sketcher.Constraint("Horizontal", 0),
    Sketcher.Constraint("Vertical", 1),
    Sketcher.Constraint("Horizontal", 2),
    Sketcher.Constraint("DistanceX", 0, 1, 0, 2, 14.0),
    Sketcher.Constraint("DistanceY", 1, 2, 1, 1, 12.0),
    Sketcher.Constraint("DistanceX", 2, 2, 2, 1, 16.8),
    Sketcher.Constraint("DistanceX", -1, 1, 0, 2, 77.0),
    Sketcher.Constraint("DistanceY", -1, 1, 0, 2, 24.32049),
])
pad6 = doc.addObject("PartDesign::Pad", "Pad005")
body.addObject(pad6)
pad6.Profile = sketch21
pad6.Length = 20
pad6.Reversed = True

# Sketch on XZ plane
sketch22 = doc.addObject("Sketcher::SketchObject", "Sketch021")
body.addObject(sketch22)
sketch22.AttachmentSupport = (doc.XZ_Plane, [""])
sketch22.MapMode = "FlatFace"
sketch22.AttachmentOffset = App.Placement(App.Vector(0, 0, 6.001751), App.Rotation())
sketch22.addGeometry(Part.Circle(App.Vector(72, 21.3, 0), App.Vector(0, 0, 1), 1.5), False)
sketch22.addConstraint([
    Sketcher.Constraint("Diameter", 0, 3.0),
    Sketcher.Constraint("DistanceX", -1, 1, 0, 3, 72.0),
    Sketcher.Constraint("DistanceY", -1, 1, 0, 3, 21.32049),
])
pocket16 = doc.addObject("PartDesign::Pocket", "Pocket015")
body.addObject(pocket16)
pocket16.Profile = sketch22
pocket16.Type = "ThroughAll"
pocket16.Reversed = True

# Sketch on XZ plane
sketch23 = doc.addObject("Sketcher::SketchObject", "Sketch022")
body.addObject(sketch23)
sketch23.AttachmentSupport = (doc.XZ_Plane, [""])
sketch23.MapMode = "FlatFace"
sketch23.AttachmentOffset = App.Placement(App.Vector(0, 0, 29.001751), App.Rotation())
add_polygon(sketch23, [(72, 24.6), (69.2, 22.9), (69.2, 19.7), (72, 18.1), (74.8, 19.7), (74.8, 22.9)])  # lines 0-5
sketch23.addConstraint([
    Sketcher.Constraint("Vertical", 1),
    Sketcher.Constraint("Vertical", 4),
    Sketcher.Constraint("Parallel", 0, 3),
    Sketcher.Constraint("Parallel", 2, 5),
    Sketcher.Constraint("Horizontal", 1, 2, 3, 2),
    Sketcher.Constraint("Horizontal", 0, 2, 4, 2),
    Sketcher.Constraint("Vertical", 2, 2, 5, 2),
    Sketcher.Constraint("Angle", 0, Q("-150 deg")),
    Sketcher.Constraint("DistanceX", -1, 1, 2, 2, 72.0),
    Sketcher.Constraint("DistanceY", 1, 2, 1, 1, 3.25),
    Sketcher.Constraint("DistanceY", 2, 2, 5, 2, 6.5),
    Sketcher.Constraint("DistanceY", -1, 1, 0, 2, 22.94549),
])
pocket17 = doc.addObject("PartDesign::Pocket", "Pocket016")
body.addObject(pocket17)
pocket17.Profile = sketch23
pocket17.Length = 15

# Sketch on XZ plane
sketch24 = doc.addObject("Sketcher::SketchObject", "Sketch023")
body.addObject(sketch24)
sketch24.AttachmentSupport = (doc.XZ_Plane, [""])
sketch24.MapMode = "FlatFace"
sketch24.AttachmentOffset = App.Placement(App.Vector(0, 0, 2.001751), App.Rotation())
add_polygon(sketch24, [(67, -46), (67, -41), (77, -41), (77, -46)])  # lines 0-3
sketch24.addConstraint([
    Sketcher.Constraint("Vertical", 0),
    Sketcher.Constraint("Horizontal", 1),
    Sketcher.Constraint("Vertical", 2),
    Sketcher.Constraint("Horizontal", 3),
    Sketcher.Constraint("DistanceX", 1, 1, 1, 2, 10.0),
    Sketcher.Constraint("DistanceY", 0, 1, 0, 2, 5.0),
    Sketcher.Constraint("DistanceX", -1, 1, 0, 2, 67.0),
    Sketcher.Constraint("DistanceY", 0, 2, -1, 1, 40.67951),
])
pocket18 = doc.addObject("PartDesign::Pocket", "Pocket017")
body.addObject(pocket18)
pocket18.Profile = sketch24
pocket18.Type = "UpToFirst"
pocket18.Reversed = True

# Sketch on XZ plane
sketch25 = doc.addObject("Sketcher::SketchObject", "Sketch024")
body.addObject(sketch25)
sketch25.AttachmentSupport = (doc.XZ_Plane, [""])
sketch25.MapMode = "FlatFace"
sketch25.AttachmentOffset = App.Placement(App.Vector(0, 0, -20.998249), App.Rotation())
sketch25.addGeometry(Part.Circle(App.Vector(40, 17.3, 0), App.Vector(0, 0, 1), 1.6), False)
sketch25.addConstraint([
    Sketcher.Constraint("Diameter", 0, 3.2),
    Sketcher.Constraint("DistanceX", -1, 1, 0, 3, 40.0),
    Sketcher.Constraint("DistanceY", -1, 1, 0, 3, 17.32049),
])
pocket19 = doc.addObject("PartDesign::Pocket", "Pocket018")
body.addObject(pocket19)
pocket19.Profile = sketch25
pocket19.Type = "ThroughAll"
pocket19.Reversed = True

# Sketch on XZ plane
sketch26 = doc.addObject("Sketcher::SketchObject", "Sketch025")
body.addObject(sketch26)
sketch26.AttachmentSupport = (doc.XZ_Plane, [""])
sketch26.MapMode = "FlatFace"
sketch26.AttachmentOffset = App.Placement(App.Vector(0, 0, 29.001751), App.Rotation())
add_polygon(sketch26, [(38.4, 20.1), (36.8, 17.3), (38.4, 14.5), (41.6, 14.5), (43.2, 17.3), (41.6, 20.1)])  # lines 0-5
sketch26.addConstraint([
    Sketcher.Constraint("Horizontal", 2),
    Sketcher.Constraint("Horizontal", 5),
    Sketcher.Constraint("Parallel", 0, 3),
    Sketcher.Constraint("Parallel", 1, 4),
    Sketcher.Constraint("Horizontal", 0, 2, 3, 2),
    Sketcher.Constraint("Vertical", 2, 2, 4, 2),
    Sketcher.Constraint("Vertical", 1, 2, 5, 2),
    Sketcher.Constraint("Angle", 0, Q("-120 deg")),
    Sketcher.Constraint("DistanceX", 2, 1, 2, 2, 3.25),
    Sketcher.Constraint("DistanceX", 0, 2, 3, 2, 6.5),
    Sketcher.Constraint("DistanceX", -1, 1, 0, 2, 36.75),
    Sketcher.Constraint("DistanceY", -1, 1, 0, 2, 17.32049),
])
pocket20 = doc.addObject("PartDesign::Pocket", "Pocket019")
body.addObject(pocket20)
pocket20.Profile = sketch26
pocket20.Length = 14

doc.recompute()
